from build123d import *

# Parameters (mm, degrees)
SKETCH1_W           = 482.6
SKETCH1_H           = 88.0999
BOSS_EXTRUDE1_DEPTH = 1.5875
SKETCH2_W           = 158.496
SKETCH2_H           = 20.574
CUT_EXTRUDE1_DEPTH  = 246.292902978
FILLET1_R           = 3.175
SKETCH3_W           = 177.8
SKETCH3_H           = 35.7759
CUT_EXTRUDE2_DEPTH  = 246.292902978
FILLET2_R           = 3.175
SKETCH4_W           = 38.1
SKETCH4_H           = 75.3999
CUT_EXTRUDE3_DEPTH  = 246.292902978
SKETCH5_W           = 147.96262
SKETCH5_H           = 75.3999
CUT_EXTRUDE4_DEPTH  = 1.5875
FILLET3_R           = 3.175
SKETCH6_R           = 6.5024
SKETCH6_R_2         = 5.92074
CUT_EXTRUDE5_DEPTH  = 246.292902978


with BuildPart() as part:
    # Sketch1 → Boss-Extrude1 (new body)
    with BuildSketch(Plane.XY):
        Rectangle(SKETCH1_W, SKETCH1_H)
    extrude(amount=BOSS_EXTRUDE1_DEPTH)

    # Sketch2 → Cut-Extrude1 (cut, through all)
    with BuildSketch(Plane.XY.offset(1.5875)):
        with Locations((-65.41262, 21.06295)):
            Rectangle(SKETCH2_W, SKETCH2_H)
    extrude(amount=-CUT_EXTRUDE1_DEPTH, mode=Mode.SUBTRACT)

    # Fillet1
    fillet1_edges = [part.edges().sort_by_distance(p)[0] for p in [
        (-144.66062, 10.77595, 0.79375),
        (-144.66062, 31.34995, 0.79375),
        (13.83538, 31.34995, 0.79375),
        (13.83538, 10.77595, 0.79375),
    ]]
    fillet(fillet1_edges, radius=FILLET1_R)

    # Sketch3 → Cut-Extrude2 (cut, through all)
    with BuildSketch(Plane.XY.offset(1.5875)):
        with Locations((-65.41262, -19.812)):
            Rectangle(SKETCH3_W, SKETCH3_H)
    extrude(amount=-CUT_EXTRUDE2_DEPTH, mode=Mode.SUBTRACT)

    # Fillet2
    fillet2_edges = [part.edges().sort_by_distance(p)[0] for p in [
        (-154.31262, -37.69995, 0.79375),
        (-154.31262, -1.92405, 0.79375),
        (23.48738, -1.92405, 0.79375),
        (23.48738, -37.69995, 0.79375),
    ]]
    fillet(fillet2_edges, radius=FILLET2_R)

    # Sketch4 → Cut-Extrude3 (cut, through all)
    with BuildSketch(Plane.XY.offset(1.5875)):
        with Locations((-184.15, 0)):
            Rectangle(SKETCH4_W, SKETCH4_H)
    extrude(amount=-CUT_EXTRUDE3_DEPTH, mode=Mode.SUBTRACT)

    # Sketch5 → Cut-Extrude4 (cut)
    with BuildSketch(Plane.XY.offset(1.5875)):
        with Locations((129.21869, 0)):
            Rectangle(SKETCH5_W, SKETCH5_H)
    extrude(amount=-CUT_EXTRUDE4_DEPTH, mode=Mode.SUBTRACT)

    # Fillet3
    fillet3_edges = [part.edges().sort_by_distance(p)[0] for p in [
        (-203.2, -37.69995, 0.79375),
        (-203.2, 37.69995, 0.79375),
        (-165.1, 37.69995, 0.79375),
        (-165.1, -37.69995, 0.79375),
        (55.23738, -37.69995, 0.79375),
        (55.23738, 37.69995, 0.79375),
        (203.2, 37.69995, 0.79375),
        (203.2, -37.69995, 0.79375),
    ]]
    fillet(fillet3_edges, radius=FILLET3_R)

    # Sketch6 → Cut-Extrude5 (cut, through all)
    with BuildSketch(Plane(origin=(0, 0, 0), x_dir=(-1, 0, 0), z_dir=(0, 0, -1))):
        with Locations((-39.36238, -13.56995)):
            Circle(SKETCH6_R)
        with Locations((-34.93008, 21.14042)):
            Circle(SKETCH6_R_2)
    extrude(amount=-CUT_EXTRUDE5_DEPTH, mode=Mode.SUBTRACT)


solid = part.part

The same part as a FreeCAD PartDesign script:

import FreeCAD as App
import Part
import Sketcher

V = App.Vector
Q = App.Units.Quantity


def edges_at(feature, points):
    """Names of the edges that pass closest to the given points."""
    edges = feature.Shape.Edges
    near = lambda p: min(range(len(edges)), key=lambda i: edges[i].distToShape(Part.Vertex(*p))[0])
    return sorted({f"Edge{near(p) + 1}" for p in points})

doc = App.newDocument("Part")
body = doc.addObject("PartDesign::Body", "Body")

sketch1 = doc.addObject("Sketcher::SketchObject", "Sketch")
body.addObject(sketch1)
sketch1.AttachmentSupport = (doc.XY_Plane, [""])
sketch1.MapMode = "FlatFace"
sketch1.addGeometry(Part.LineSegment(V(-241.3, 44.04995, 0), V(-241.3, -44.04995, 0)), False)
sketch1.addGeometry(Part.LineSegment(V(-241.3, -44.04995, 0), V(241.3, -44.04995, 0)), False)
sketch1.addGeometry(Part.LineSegment(V(241.3, -44.04995, 0), V(241.3, 44.04995, 0)), False)
sketch1.addGeometry(Part.LineSegment(V(241.3, 44.04995, 0), V(-241.3, 44.04995, 0)), False)
sketch1.addConstraint(Sketcher.Constraint("Coincident", 0, 2, 1, 1))
sketch1.addConstraint(Sketcher.Constraint("Coincident", 1, 2, 2, 1))
sketch1.addConstraint(Sketcher.Constraint("Coincident", 2, 2, 3, 1))
sketch1.addConstraint(Sketcher.Constraint("Coincident", 3, 2, 0, 1))
sketch1.addConstraint(Sketcher.Constraint("Vertical", 0))
sketch1.addConstraint(Sketcher.Constraint("Horizontal", 1))
sketch1.addConstraint(Sketcher.Constraint("Vertical", 2))
sketch1.addConstraint(Sketcher.Constraint("Horizontal", 3))
sketch1.addConstraint(Sketcher.Constraint("Symmetric", 0, 2, 2, 2, -1, 1))
sketch1.addConstraint(Sketcher.Constraint("DistanceX", 1, 1, 1, 2, Q("19 in")))
sketch1.addConstraint(Sketcher.Constraint("DistanceY", 0, 2, 0, 1, Q("3.4685 in")))
pad1 = doc.addObject("PartDesign::Pad", "Pad")
body.addObject(pad1)
pad1.Profile = sketch1
pad1.Length = Q("0.0625 in")

sketch2 = doc.addObject("Sketcher::SketchObject", "Sketch001")
body.addObject(sketch2)
sketch2.AttachmentSupport = (doc.XY_Plane, [""])
sketch2.MapMode = "FlatFace"
sketch2.AttachmentOffset = App.Placement(V(0, 0, 0.0625 * 25.4), App.Rotation())
sketch2.addGeometry(Part.LineSegment(V(-144.66062, 31.34995, 0), V(-144.66062, 10.77595, 0)), False)
sketch2.addGeometry(Part.LineSegment(V(-144.66062, 10.77595, 0), V(13.83538, 10.77595, 0)), False)
sketch2.addGeometry(Part.LineSegment(V(13.83538, 10.77595, 0), V(13.83538, 31.34995, 0)), False)
sketch2.addGeometry(Part.LineSegment(V(13.83538, 31.34995, 0), V(-144.66062, 31.34995, 0)), False)
sketch2.addConstraint(Sketcher.Constraint("Coincident", 0, 2, 1, 1))
sketch2.addConstraint(Sketcher.Constraint("Coincident", 1, 2, 2, 1))
sketch2.addConstraint(Sketcher.Constraint("Coincident", 2, 2, 3, 1))
sketch2.addConstraint(Sketcher.Constraint("Coincident", 3, 2, 0, 1))
sketch2.addConstraint(Sketcher.Constraint("Vertical", 0))
sketch2.addConstraint(Sketcher.Constraint("Horizontal", 1))
sketch2.addConstraint(Sketcher.Constraint("Vertical", 2))
sketch2.addConstraint(Sketcher.Constraint("Horizontal", 3))
sketch2.addConstraint(Sketcher.Constraint("DistanceX", 1, 1, 1, 2, Q("6.24 in")))
sketch2.addConstraint(Sketcher.Constraint("DistanceY", 0, 2, 0, 1, Q("0.81 in")))
sketch2.addConstraint(Sketcher.Constraint("DistanceX", 0, 2, -1, 1, Q("5.6953 in")))
sketch2.addConstraint(Sketcher.Constraint("DistanceY", -1, 1, 0, 2, Q("10.77595 mm")))
pocket1 = doc.addObject("PartDesign::Pocket", "Pocket")
body.addObject(pocket1)
pocket1.Profile = sketch2
pocket1.Type = "ThroughAll"
doc.recompute()

fillet = doc.addObject("PartDesign::Fillet", "Fillet")
body.addObject(fillet)
fillet.Base = (pocket1, edges_at(pocket1, [
    (-144.661, 10.776, 0.794),
    (-144.661, 31.35, 0.794),
    (13.835, 31.35, 0.794),
    (13.835, 10.776, 0.794),
]))
fillet.Radius = Q("0.125 in")

sketch3 = doc.addObject("Sketcher::SketchObject", "Sketch002")
body.addObject(sketch3)
sketch3.AttachmentSupport = (doc.XY_Plane, [""])
sketch3.MapMode = "FlatFace"
sketch3.AttachmentOffset = App.Placement(V(0, 0, 0.0625 * 25.4), App.Rotation())
sketch3.addGeometry(Part.LineSegment(V(-154.31262, -1.92405, 0), V(-154.31262, -37.69995, 0)), False)
sketch3.addGeometry(Part.LineSegment(V(-154.31262, -37.69995, 0), V(23.48738, -37.69995, 0)), False)
sketch3.addGeometry(Part.LineSegment(V(23.48738, -37.69995, 0), V(23.48738, -1.92405, 0)), False)
sketch3.addGeometry(Part.LineSegment(V(23.48738, -1.92405, 0), V(-154.31262, -1.92405, 0)), False)
sketch3.addConstraint(Sketcher.Constraint("Coincident", 0, 2, 1, 1))
sketch3.addConstraint(Sketcher.Constraint("Coincident", 1, 2, 2, 1))
sketch3.addConstraint(Sketcher.Constraint("Coincident", 2, 2, 3, 1))
sketch3.addConstraint(Sketcher.Constraint("Coincident", 3, 2, 0, 1))
sketch3.addConstraint(Sketcher.Constraint("Vertical", 0))
sketch3.addConstraint(Sketcher.Constraint("Horizontal", 1))
sketch3.addConstraint(Sketcher.Constraint("Vertical", 2))
sketch3.addConstraint(Sketcher.Constraint("Horizontal", 3))
sketch3.addConstraint(Sketcher.Constraint("DistanceX", 1, 1, 1, 2, Q("7 in")))
sketch3.addConstraint(Sketcher.Constraint("DistanceY", 0, 2, 0, 1, Q("1.4085 in")))
sketch3.addConstraint(Sketcher.Constraint("DistanceX", 0, 2, -1, 1, Q("6.0753 in")))
sketch3.addConstraint(Sketcher.Constraint("DistanceY", 0, 2, -1, 1, Q("37.69995 mm")))
pocket2 = doc.addObject("PartDesign::Pocket", "Pocket001")
body.addObject(pocket2)
pocket2.Profile = sketch3
pocket2.Type = "ThroughAll"
doc.recompute()

fillet2 = doc.addObject("PartDesign::Fillet", "Fillet001")
body.addObject(fillet2)
fillet2.Base = (pocket2, edges_at(pocket2, [
    (-154.313, -37.7, 0.794),
    (-154.313, -1.924, 0.794),
    (23.487, -1.924, 0.794),
    (23.487, -37.7, 0.794),
]))
fillet2.Radius = Q("0.125 in")

sketch4 = doc.addObject("Sketcher::SketchObject", "Sketch003")
body.addObject(sketch4)
sketch4.AttachmentSupport = (doc.XY_Plane, [""])
sketch4.MapMode = "FlatFace"
sketch4.AttachmentOffset = App.Placement(V(0, 0, 0.0625 * 25.4), App.Rotation())
sketch4.addGeometry(Part.LineSegment(V(-203.2, 37.69995, 0), V(-203.2, -37.69995, 0)), False)
sketch4.addGeometry(Part.LineSegment(V(-203.2, -37.69995, 0), V(-165.1, -37.69995, 0)), False)
sketch4.addGeometry(Part.LineSegment(V(-165.1, -37.69995, 0), V(-165.1, 37.69995, 0)), False)
sketch4.addGeometry(Part.LineSegment(V(-165.1, 37.69995, 0), V(-203.2, 37.69995, 0)), False)
sketch4.addConstraint(Sketcher.Constraint("Coincident", 0, 2, 1, 1))
sketch4.addConstraint(Sketcher.Constraint("Coincident", 1, 2, 2, 1))
sketch4.addConstraint(Sketcher.Constraint("Coincident", 2, 2, 3, 1))
sketch4.addConstraint(Sketcher.Constraint("Coincident", 3, 2, 0, 1))
sketch4.addConstraint(Sketcher.Constraint("Vertical", 0))
sketch4.addConstraint(Sketcher.Constraint("Horizontal", 1))
sketch4.addConstraint(Sketcher.Constraint("Vertical", 2))
sketch4.addConstraint(Sketcher.Constraint("Horizontal", 3))
sketch4.addConstraint(Sketcher.Constraint("DistanceX", 1, 1, 1, 2, Q("1.5 in")))
sketch4.addConstraint(Sketcher.Constraint("DistanceX", 0, 2, -1, 1, Q("8 in")))
sketch4.addConstraint(Sketcher.Constraint("DistanceY", 0, 2, 0, 1, Q("2.9685 in")))
sketch4.addConstraint(Sketcher.Constraint("DistanceY", 0, 2, -1, 1, Q("37.69995 mm")))
pocket3 = doc.addObject("PartDesign::Pocket", "Pocket002")
body.addObject(pocket3)
pocket3.Profile = sketch4
pocket3.Type = "ThroughAll"

sketch5 = doc.addObject("Sketcher::SketchObject", "Sketch004")
body.addObject(sketch5)
sketch5.AttachmentSupport = (doc.XY_Plane, [""])
sketch5.MapMode = "FlatFace"
sketch5.AttachmentOffset = App.Placement(V(0, 0, 0.0625 * 25.4), App.Rotation())
sketch5.addGeometry(Part.LineSegment(V(55.23738, 37.69995, 0), V(55.23738, -37.69995, 0)), False)
sketch5.addGeometry(Part.LineSegment(V(55.23738, -37.69995, 0), V(203.2, -37.69995, 0)), False)
sketch5.addGeometry(Part.LineSegment(V(203.2, -37.69995, 0), V(203.2, 37.69995, 0)), False)
sketch5.addGeometry(Part.LineSegment(V(203.2, 37.69995, 0), V(55.23738, 37.69995, 0)), False)
sketch5.addConstraint(Sketcher.Constraint("Coincident", 0, 2, 1, 1))
sketch5.addConstraint(Sketcher.Constraint("Coincident", 1, 2, 2, 1))
sketch5.addConstraint(Sketcher.Constraint("Coincident", 2, 2, 3, 1))
sketch5.addConstraint(Sketcher.Constraint("Coincident", 3, 2, 0, 1))
sketch5.addConstraint(Sketcher.Constraint("Vertical", 0))
sketch5.addConstraint(Sketcher.Constraint("Horizontal", 1))
sketch5.addConstraint(Sketcher.Constraint("Vertical", 2))
sketch5.addConstraint(Sketcher.Constraint("Horizontal", 3))
sketch5.addConstraint(Sketcher.Constraint("DistanceX", -1, 1, 1, 2, Q("8 in")))
sketch5.addConstraint(Sketcher.Constraint("DistanceX", 1, 1, 1, 2, Q("5.8253 in")))
sketch5.addConstraint(Sketcher.Constraint("DistanceY", 0, 2, 0, 1, Q("2.9685 in")))
sketch5.addConstraint(Sketcher.Constraint("DistanceY", 0, 2, -1, 1, Q("37.69995 mm")))
pocket4 = doc.addObject("PartDesign::Pocket", "Pocket003")
body.addObject(pocket4)
pocket4.Profile = sketch5
pocket4.Length = Q("0.0625 in")
doc.recompute()

fillet3 = doc.addObject("PartDesign::Fillet", "Fillet002")
body.addObject(fillet3)
fillet3.Base = (pocket4, edges_at(pocket4, [
    (-203.2, -37.7, 0.794),
    (-203.2, 37.7, 0.794),
    (-165.1, 37.7, 0.794),
    (-165.1, -37.7, 0.794),
    (55.237, -37.7, 0.794),
    (55.237, 37.7, 0.794),
    (203.2, 37.7, 0.794),
    (203.2, -37.7, 0.794),
]))
fillet3.Radius = Q("0.125 in")

sketch6 = doc.addObject("Sketcher::SketchObject", "Sketch005")
body.addObject(sketch6)
sketch6.AttachmentSupport = (doc.XY_Plane, [""])
sketch6.MapMode = "FlatFace"
sketch6.addGeometry(Part.Circle(V(39.36238, -13.56995, 0), V(0, 0, 1), 6.5024), False)
sketch6.addGeometry(Part.Circle(V(34.93008, 21.14042, 0), V(0, 0, 1), 5.92074), False)
sketch6.addConstraint(Sketcher.Constraint("Diameter", 0, Q("0.512 in")))
sketch6.addConstraint(Sketcher.Constraint("Diameter", 1, Q("0.4662 in")))
sketch6.addConstraint(Sketcher.Constraint("DistanceX", -1, 1, 0, 3, Q("1.5497 in")))
sketch6.addConstraint(Sketcher.Constraint("DistanceX", -1, 1, 1, 3, Q("1.3752 in")))
sketch6.addConstraint(Sketcher.Constraint("DistanceY", -1, 1, 1, 3, Q("0.8323 in")))
sketch6.addConstraint(Sketcher.Constraint("DistanceY", 0, 3, -1, 1, Q("13.56995 mm")))
pocket5 = doc.addObject("PartDesign::Pocket", "Pocket004")
body.addObject(pocket5)
pocket5.Profile = sketch6
pocket5.Type = "ThroughAll"
pocket5.Reversed = True

doc.recompute()
